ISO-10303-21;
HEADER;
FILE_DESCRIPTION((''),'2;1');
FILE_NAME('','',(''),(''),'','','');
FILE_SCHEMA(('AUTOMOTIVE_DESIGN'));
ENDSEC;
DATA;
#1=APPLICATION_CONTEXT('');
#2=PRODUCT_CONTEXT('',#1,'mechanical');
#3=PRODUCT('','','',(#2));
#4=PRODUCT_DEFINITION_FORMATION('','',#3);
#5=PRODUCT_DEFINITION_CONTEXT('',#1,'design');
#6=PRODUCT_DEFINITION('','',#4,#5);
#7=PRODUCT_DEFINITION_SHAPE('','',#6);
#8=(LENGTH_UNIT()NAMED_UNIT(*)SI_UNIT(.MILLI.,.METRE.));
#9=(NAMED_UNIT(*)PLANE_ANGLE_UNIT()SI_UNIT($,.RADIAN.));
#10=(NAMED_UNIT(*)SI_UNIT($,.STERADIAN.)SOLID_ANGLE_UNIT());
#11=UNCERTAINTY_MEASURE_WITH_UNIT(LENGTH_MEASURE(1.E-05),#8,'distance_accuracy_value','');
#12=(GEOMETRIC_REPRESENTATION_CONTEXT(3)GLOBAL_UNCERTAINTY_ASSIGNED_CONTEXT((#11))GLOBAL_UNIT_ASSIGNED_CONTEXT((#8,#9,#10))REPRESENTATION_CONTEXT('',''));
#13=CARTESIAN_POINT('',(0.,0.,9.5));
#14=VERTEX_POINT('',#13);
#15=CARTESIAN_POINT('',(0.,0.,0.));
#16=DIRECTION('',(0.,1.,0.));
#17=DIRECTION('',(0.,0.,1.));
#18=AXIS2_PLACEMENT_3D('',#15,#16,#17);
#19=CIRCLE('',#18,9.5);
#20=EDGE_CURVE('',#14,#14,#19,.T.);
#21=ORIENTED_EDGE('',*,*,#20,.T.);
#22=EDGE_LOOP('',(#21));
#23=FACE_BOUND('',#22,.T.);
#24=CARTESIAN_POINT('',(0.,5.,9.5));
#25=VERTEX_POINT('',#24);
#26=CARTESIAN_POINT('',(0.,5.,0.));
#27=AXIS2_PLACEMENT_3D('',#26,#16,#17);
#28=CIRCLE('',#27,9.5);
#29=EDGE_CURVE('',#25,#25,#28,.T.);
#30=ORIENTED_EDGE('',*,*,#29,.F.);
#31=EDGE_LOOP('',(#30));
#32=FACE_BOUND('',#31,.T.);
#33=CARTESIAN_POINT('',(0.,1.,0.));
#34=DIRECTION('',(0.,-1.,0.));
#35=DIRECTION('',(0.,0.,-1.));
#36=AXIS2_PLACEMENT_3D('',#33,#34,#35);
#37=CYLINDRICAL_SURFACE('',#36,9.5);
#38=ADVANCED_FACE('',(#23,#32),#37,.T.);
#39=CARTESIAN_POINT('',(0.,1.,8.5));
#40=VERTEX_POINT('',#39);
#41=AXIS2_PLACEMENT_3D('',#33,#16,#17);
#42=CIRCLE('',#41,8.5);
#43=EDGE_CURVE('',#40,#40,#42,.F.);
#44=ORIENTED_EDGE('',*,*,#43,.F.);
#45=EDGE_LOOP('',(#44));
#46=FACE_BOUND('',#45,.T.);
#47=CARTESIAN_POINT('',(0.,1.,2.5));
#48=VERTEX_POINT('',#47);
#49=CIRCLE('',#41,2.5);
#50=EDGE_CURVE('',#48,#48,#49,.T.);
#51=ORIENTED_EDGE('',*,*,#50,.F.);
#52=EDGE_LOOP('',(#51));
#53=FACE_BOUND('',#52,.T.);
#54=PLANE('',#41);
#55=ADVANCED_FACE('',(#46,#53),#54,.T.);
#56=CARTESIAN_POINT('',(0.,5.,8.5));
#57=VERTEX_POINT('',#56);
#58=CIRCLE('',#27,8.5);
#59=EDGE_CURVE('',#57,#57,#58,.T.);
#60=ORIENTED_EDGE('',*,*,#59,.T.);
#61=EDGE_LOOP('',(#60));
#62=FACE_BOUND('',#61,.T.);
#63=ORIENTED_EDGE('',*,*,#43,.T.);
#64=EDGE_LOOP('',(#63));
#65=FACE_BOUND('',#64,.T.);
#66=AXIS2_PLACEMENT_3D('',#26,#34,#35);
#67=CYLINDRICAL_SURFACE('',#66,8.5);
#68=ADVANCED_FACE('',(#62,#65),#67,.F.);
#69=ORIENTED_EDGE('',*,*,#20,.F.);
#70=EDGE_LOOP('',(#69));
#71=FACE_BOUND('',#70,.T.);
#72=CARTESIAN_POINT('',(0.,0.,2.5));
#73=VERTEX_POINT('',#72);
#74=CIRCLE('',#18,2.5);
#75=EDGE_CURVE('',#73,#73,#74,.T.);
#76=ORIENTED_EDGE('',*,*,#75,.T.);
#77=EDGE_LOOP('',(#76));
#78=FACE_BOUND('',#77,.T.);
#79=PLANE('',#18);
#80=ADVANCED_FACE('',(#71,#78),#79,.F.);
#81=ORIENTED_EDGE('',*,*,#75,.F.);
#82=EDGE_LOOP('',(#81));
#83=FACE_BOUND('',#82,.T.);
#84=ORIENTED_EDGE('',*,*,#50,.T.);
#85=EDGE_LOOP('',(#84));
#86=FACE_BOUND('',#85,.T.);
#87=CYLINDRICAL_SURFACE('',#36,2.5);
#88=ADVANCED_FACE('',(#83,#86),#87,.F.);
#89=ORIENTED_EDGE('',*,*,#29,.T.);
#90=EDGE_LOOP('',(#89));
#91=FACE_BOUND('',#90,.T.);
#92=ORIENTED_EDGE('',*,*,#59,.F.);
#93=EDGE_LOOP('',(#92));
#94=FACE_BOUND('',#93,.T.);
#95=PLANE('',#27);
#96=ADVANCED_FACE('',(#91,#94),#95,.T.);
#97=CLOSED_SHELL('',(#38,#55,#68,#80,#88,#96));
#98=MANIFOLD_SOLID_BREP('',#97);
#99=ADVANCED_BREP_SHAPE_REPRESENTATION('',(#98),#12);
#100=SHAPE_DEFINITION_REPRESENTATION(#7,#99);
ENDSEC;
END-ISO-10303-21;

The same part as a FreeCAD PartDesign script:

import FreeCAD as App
import Part
import Sketcher
from FreeCAD import Vector
Q = App.Units.Quantity

doc = App.newDocument("Part")
body = doc.addObject("PartDesign::Body", "Body")

# Sketch on XZ plane
sketch1 = doc.addObject("Sketcher::SketchObject", "Sketch")
body.addObject(sketch1)
sketch1.AttachmentSupport = (doc.XZ_Plane, [""])
sketch1.MapMode = "FlatFace"
sketch1.addGeometry([
    Part.Circle(Vector(0, 0, 0), Vector(0, 0, 1), 9.5),
    Part.Circle(Vector(0, 0, 0), Vector(0, 0, 1), 2.5),
], False)
sketch1.addConstraint([
    Sketcher.Constraint("Coincident", 0, 3, -1, 1),
    Sketcher.Constraint("Coincident", 1, 3, -1, 1),
    Sketcher.Constraint("Diameter", 0, Q("19 mm")),
    Sketcher.Constraint("Diameter", 1, Q("5 mm")),
])
pad1 = doc.addObject("PartDesign::Pad", "Pad")
body.addObject(pad1)
pad1.Profile = sketch1
pad1.Length = 1
pad1.Reversed = True

# Sketch on XZ plane
sketch2 = doc.addObject("Sketcher::SketchObject", "Sketch001")
body.addObject(sketch2)
sketch2.AttachmentSupport = (doc.XZ_Plane, [""])
sketch2.MapMode = "FlatFace"
sketch2.addGeometry([
    Part.Circle(Vector(0, 0, 0), Vector(0, 0, 1), 9.5),
    Part.Circle(Vector(0, 0, 0), Vector(0, 0, 1), 8.5),
], False)
sketch2.addConstraint([
    Sketcher.Constraint("Coincident", 0, 3, -1, 1),
    Sketcher.Constraint("Coincident", 1, 3, -1, 1),
    Sketcher.Constraint("Diameter", 0, Q("19 mm")),
    Sketcher.Constraint("Diameter", 1, Q("17 mm")),
])
pad2 = doc.addObject("PartDesign::Pad", "Pad001")
body.addObject(pad2)
pad2.Profile = sketch2
pad2.Length = 5
pad2.Reversed = True

doc.recompute()
